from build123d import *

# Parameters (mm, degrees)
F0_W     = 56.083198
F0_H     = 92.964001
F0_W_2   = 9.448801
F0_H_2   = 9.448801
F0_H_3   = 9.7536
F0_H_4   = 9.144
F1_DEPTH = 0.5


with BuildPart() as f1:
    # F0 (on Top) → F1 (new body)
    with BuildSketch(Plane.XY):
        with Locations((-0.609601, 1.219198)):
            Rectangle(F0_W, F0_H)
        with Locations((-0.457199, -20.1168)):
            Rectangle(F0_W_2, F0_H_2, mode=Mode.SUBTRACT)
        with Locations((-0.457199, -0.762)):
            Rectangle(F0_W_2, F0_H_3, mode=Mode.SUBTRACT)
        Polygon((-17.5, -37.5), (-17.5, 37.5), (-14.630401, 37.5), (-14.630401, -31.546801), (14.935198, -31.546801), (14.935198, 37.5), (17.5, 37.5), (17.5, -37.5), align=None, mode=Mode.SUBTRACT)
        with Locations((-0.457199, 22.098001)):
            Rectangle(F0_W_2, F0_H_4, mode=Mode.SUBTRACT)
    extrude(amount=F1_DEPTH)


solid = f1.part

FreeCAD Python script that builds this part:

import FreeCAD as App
import Part
import Sketcher

V = App.Vector
Q = App.Units.Quantity


def add_polygon(sketch, points):
    """Adds a closed chain of lines whose ends are joined by coincident constraints."""
    first, n = sketch.GeometryCount, len(points)
    for a, b in zip(points, points[1:] + points[:1]):
        sketch.addGeometry(Part.LineSegment(App.Vector(*a, 0), App.Vector(*b, 0)), False)
    for i in range(n):
        sketch.addConstraint(Sketcher.Constraint("Coincident", first + i, 2, first + (i + 1) % n, 1))

doc = App.newDocument("Part")
body = doc.addObject("PartDesign::Body", "Body")

sketch1 = body.newObject("Sketcher::SketchObject", "Sketch")
sketch1.AttachmentSupport = (doc.getObject("XY_Plane"), [""])
sketch1.MapMode = "FlatFace"
add_polygon(sketch1, [(-28.6512, 47.701198), (-28.6512, -45.262802), (27.431998, -45.262802), (27.431998, 47.701198)])
add_polygon(sketch1, [(4.267201, -24.8412), (-5.181599, -24.8412), (-5.181599, -15.392399), (4.267201, -15.392399)])
add_polygon(sketch1, [(4.267201, -5.6388), (-5.181599, -5.6388), (-5.181599, 4.1148), (4.267201, 4.1148)])
add_polygon(sketch1, [(4.267201, 17.526001), (-5.181599, 17.526001), (-5.181599, 26.670001), (4.267201, 26.670001)])
add_polygon(sketch1, [(17.5, -37.5), (-17.5, -37.5), (-17.5, 37.5), (-14.630401, 37.5), (-14.630401, -31.546801), (14.935198, -31.546801), (14.935198, 37.5), (17.5, 37.5)])
sketch1.addConstraint([
    Sketcher.Constraint("Vertical", 0),
    Sketcher.Constraint("Horizontal", 1),
    Sketcher.Constraint("Vertical", 2),
    Sketcher.Constraint("Horizontal", 3),
    Sketcher.Constraint("Horizontal", 4),
    Sketcher.Constraint("Vertical", 5),
    Sketcher.Constraint("Horizontal", 6),
    Sketcher.Constraint("Vertical", 7),
    Sketcher.Constraint("Horizontal", 8),
    Sketcher.Constraint("Vertical", 9),
    Sketcher.Constraint("Horizontal", 10),
    Sketcher.Constraint("Vertical", 11),
    Sketcher.Constraint("Horizontal", 12),
    Sketcher.Constraint("Vertical", 13),
    Sketcher.Constraint("Horizontal", 14),
    Sketcher.Constraint("Vertical", 15),
    Sketcher.Constraint("Horizontal", 16),
    Sketcher.Constraint("Vertical", 17),
    Sketcher.Constraint("Horizontal", 18),
    Sketcher.Constraint("Vertical", 19),
    Sketcher.Constraint("Horizontal", 20),
    Sketcher.Constraint("Vertical", 21),
    Sketcher.Constraint("Horizontal", 22),
    Sketcher.Constraint("Vertical", 23),
    Sketcher.Constraint("Symmetric", 16, 2, 22, 2, -1, 1),
    Sketcher.Constraint("Horizontal", 18, 2, 21, 2),
    Sketcher.Constraint("Vertical", 5, 2, 8, 2),
    Sketcher.Constraint("Vertical", 7, 2, 10, 2),
    Sketcher.Constraint("Vertical", 9, 2, 12, 2),
    Sketcher.Constraint("Vertical", 11, 2, 14, 2),
    Sketcher.Constraint("Equal", 14, 5),
    Sketcher.Constraint("DistanceY", 0, 2, 0, 1, Q("3.66 in")),
    Sketcher.Constraint("DistanceY", 13, 1, 13, 2, Q("0.36 in")),
    Sketcher.Constraint("DistanceX", 1, 1, 1, 2, Q("2.2079999 in")),
    Sketcher.Constraint("DistanceX", 4, 2, 4, 1, Q("0.372 in")),
    Sketcher.Constraint("DistanceX", 20, 1, 20, 2, Q("1.164 in")),
    Sketcher.Constraint("DistanceY", 9, 1, 9, 2, Q("0.384 in")),
    Sketcher.Constraint("DistanceX", -1, 1, 1, 2, Q("1.0799999 in")),
    Sketcher.Constraint("DistanceY", -1, 1, 12, 2, Q("0.69 in")),
    Sketcher.Constraint("DistanceY", 0, 2, 8, 2, Q("1.5600001 in")),
    Sketcher.Constraint("DistanceY", 4, 2, 9, 2, Q("1.14 in")),
    Sketcher.Constraint("DistanceY", 0, 2, 19, 2, Q("0.5400001 in")),
    Sketcher.Constraint("DistanceX", 7, 2, 20, 2, Q("0.4199999 in")),
    Sketcher.Constraint("DistanceY", 0, 2, -1, 1, Q("1.7820001 in")),
    Sketcher.Constraint("DistanceX", 4, 2, -1, 1, Q("0.204 in")),
    Sketcher.Constraint("DistanceX", 16, 2, 16, 1, Q("35 mm")),
    Sketcher.Constraint("DistanceY", 17, 1, 17, 2, Q("75 mm")),
])
pad1 = body.newObject("PartDesign::Pad", "Pad")
pad1.Profile = sketch1
pad1.Length = 0.5

doc.recompute()
